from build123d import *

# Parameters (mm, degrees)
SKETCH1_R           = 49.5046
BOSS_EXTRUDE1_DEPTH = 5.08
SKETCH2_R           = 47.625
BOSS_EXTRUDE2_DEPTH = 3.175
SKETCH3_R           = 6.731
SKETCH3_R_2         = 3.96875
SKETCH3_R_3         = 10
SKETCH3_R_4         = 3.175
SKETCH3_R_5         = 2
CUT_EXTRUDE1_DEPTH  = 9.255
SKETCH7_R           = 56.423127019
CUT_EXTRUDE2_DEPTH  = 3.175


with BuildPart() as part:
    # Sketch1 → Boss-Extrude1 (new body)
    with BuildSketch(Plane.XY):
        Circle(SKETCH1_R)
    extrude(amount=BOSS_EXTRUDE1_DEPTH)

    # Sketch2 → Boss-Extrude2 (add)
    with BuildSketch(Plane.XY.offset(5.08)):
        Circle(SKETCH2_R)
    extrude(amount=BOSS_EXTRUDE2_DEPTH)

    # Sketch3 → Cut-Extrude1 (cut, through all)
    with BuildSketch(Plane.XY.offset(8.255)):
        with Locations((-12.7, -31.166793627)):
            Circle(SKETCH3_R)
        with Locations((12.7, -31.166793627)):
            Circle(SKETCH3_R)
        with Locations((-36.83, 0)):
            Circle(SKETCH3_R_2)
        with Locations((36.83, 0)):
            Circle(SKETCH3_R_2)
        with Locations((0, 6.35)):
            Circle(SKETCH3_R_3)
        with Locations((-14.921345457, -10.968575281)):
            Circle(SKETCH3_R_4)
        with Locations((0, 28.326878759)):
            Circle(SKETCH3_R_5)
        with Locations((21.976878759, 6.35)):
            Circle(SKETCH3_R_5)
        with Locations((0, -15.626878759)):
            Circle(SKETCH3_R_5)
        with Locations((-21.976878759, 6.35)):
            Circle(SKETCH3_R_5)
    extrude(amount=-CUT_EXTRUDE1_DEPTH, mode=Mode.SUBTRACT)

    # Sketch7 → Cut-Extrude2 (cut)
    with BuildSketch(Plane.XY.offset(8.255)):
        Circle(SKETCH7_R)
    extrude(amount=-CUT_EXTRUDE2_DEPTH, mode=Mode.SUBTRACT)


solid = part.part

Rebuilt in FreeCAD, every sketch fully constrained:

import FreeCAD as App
import Part
import Sketcher
Q = App.Units.Quantity

doc = App.newDocument("Part")
body = doc.addObject("PartDesign::Body", "Body")

# Sketch on XY plane
sketch1 = body.newObject("Sketcher::SketchObject", "Sketch")
sketch1.AttachmentSupport = (doc.getObject("XY_Plane"), [""])
sketch1.MapMode = "FlatFace"
sketch1.addGeometry(Part.Circle(App.Vector(0, 0, 0), App.Vector(0, 0, 1), 50), False)
sketch1.addConstraint([
    Sketcher.Constraint("Coincident", 0, 3, -1, 1),
    Sketcher.Constraint("Diameter", 0, Q("3.898 in")),
])
pad1 = body.newObject("PartDesign::Pad", "Pad")
pad1.Profile = sketch1
pad1.Length = Q("0.2 in")

# Sketch on XY plane
sketch2 = body.newObject("Sketcher::SketchObject", "Sketch001")
sketch2.AttachmentSupport = (doc.getObject("XY_Plane"), [""])
sketch2.MapMode = "FlatFace"
sketch2.AttachmentOffset = App.Placement(App.Vector(0, 0, 0.2 * 25.4), App.Rotation())
sketch2.addGeometry(Part.Circle(App.Vector(0, 0, 0), App.Vector(0, 0, 1), 48), False)
sketch2.addConstraint([
    Sketcher.Constraint("Coincident", 0, 3, -1, 1),
    Sketcher.Constraint("Diameter", 0, Q("3.75 in")),
])
pad2 = body.newObject("PartDesign::Pad", "Pad001")
pad2.Profile = sketch2
pad2.Length = Q("0.125 in")

# Sketch on XY plane
sketch3 = body.newObject("Sketcher::SketchObject", "Sketch002")
sketch3.AttachmentSupport = (doc.getObject("XY_Plane"), [""])
sketch3.MapMode = "FlatFace"
sketch3.AttachmentOffset = App.Placement(App.Vector(0, 0, 0.325 * 25.4), App.Rotation())
sketch3.addGeometry([
    Part.Circle(App.Vector(-12.7, -31.2, 0), App.Vector(0, 0, 1), 6.7),  # 0
    Part.Circle(App.Vector(12.7, -31.2, 0), App.Vector(0, 0, 1), 6.7),  # 1
    Part.Circle(App.Vector(-36.8, 0, 0), App.Vector(0, 0, 1), 4),  # 2
    Part.Circle(App.Vector(36.8, 0, 0), App.Vector(0, 0, 1), 4),  # 3
    Part.Circle(App.Vector(0, 6.3, 0), App.Vector(0, 0, 1), 10),  # 4
    Part.Circle(App.Vector(-14.9, -11, 0), App.Vector(0, 0, 1), 3.2),  # 5
    Part.Circle(App.Vector(0, 28.3, 0), App.Vector(0, 0, 1), 2),  # 6
    Part.Circle(App.Vector(22, 6.3, 0), App.Vector(0, 0, 1), 2),  # 7
    Part.Circle(App.Vector(0, -15.6, 0), App.Vector(0, 0, 1), 2),  # 8
    Part.Circle(App.Vector(-22, 6.3, 0), App.Vector(0, 0, 1), 2),  # 9
], False)
sketch3.addConstraint([
    Sketcher.Constraint("Equal", 0, 1),
    Sketcher.Constraint("Equal", 2, 3),
    Sketcher.Constraint("Equal", 6, 7),
    Sketcher.Constraint("Equal", 7, 8),
    Sketcher.Constraint("Equal", 8, 9),
    Sketcher.Constraint("Symmetric", 2, 3, 3, 3, -1, 1),
    Sketcher.Constraint("Symmetric", 0, 3, 1, 3, -2),
    Sketcher.Constraint("Symmetric", 7, 3, 9, 3, -2),
    Sketcher.Constraint("PointOnObject", 2, 3, -1),
    Sketcher.Constraint("PointOnObject", 4, 3, -2),
    Sketcher.Constraint("PointOnObject", 6, 3, -2),
    Sketcher.Constraint("PointOnObject", 8, 3, -2),
    Sketcher.Constraint("Horizontal", 4, 3, 7, 3),
    Sketcher.Constraint("Diameter", 0, Q("0.53 in")),
    Sketcher.Constraint("Diameter", 5, Q("0.25 in")),
    Sketcher.Constraint("Diameter", 2, Q("0.3125 in")),
    Sketcher.Constraint("DistanceX", 0, 3, 1, 3, Q("1 in")),
    Sketcher.Constraint("DistanceX", 2, 3, 3, 3, Q("2.9 in")),
    Sketcher.Constraint("Diameter", 4, Q("20 mm")),
    Sketcher.Constraint("Diameter", 6, Q("4 mm")),
    Sketcher.Constraint("DistanceY", -1, 1, 4, 3, Q("0.25 in")),
    Sketcher.Constraint("DistanceY", -1, 1, 6, 3, Q("28.326879 mm")),
    Sketcher.Constraint("DistanceX", -1, 1, 7, 3, Q("21.976879 mm")),
    Sketcher.Constraint("DistanceY", 8, 3, -1, 1, Q("15.626879 mm")),
    Sketcher.Constraint("DistanceY", 0, 3, 5, 3, Q("20.198218 mm")),
    Sketcher.Constraint("DistanceY", 0, 3, -1, 1, Q("31.166794 mm")),
    Sketcher.Constraint("DistanceX", 5, 3, -1, 1, Q("14.921345 mm")),
])
pocket1 = body.newObject("PartDesign::Pocket", "Pocket")
pocket1.Profile = sketch3
pocket1.Type = "ThroughAll"

# Sketch on XY plane
sketch4 = body.newObject("Sketcher::SketchObject", "Sketch003")
sketch4.AttachmentSupport = (doc.getObject("XY_Plane"), [""])
sketch4.MapMode = "FlatFace"
sketch4.AttachmentOffset = App.Placement(App.Vector(0, 0, 0.325 * 25.4), App.Rotation())
sketch4.addGeometry(Part.Circle(App.Vector(0, 0, 0), App.Vector(0, 0, 1), 56), False)
sketch4.addConstraint([
    Sketcher.Constraint("Coincident", 0, 3, -1, 1),
    Sketcher.Constraint("Diameter", 0, Q("112.846254 mm")),
])
pocket2 = body.newObject("PartDesign::Pocket", "Pocket001")
pocket2.Profile = sketch4
pocket2.Length = Q("0.125 in")

doc.recompute()
